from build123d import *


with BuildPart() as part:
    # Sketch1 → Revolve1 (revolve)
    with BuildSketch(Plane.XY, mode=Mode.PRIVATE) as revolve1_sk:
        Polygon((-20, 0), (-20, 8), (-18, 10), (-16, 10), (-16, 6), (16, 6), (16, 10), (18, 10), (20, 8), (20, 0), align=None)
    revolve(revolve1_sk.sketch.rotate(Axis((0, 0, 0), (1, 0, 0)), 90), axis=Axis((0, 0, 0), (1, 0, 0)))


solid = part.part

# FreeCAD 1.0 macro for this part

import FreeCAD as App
import Part
import Sketcher

V = App.Vector

doc = App.newDocument("Part")
body = doc.addObject("PartDesign::Body", "Body")

# Sketch on XY plane
sketch1 = doc.addObject("Sketcher::SketchObject", "Sketch")
body.addObject(sketch1)
sketch1.AttachmentSupport = (doc.XY_Plane, [""])
sketch1.MapMode = "FlatFace"
sketch1.addGeometry(Part.LineSegment(V(-20, 8, 0), V(-20, 0, 0)), False)
sketch1.addGeometry(Part.LineSegment(V(-20, 0, 0), V(20, 0, 0)), False)
sketch1.addGeometry(Part.LineSegment(V(20, 0, 0), V(20, 8, 0)), False)
sketch1.addGeometry(Part.LineSegment(V(20, 8, 0), V(18, 10, 0)), False)
sketch1.addGeometry(Part.LineSegment(V(18, 10, 0), V(16, 10, 0)), False)
sketch1.addGeometry(Part.LineSegment(V(16, 10, 0), V(16, 6, 0)), False)
sketch1.addGeometry(Part.LineSegment(V(16, 6, 0), V(-16, 6, 0)), False)
sketch1.addGeometry(Part.LineSegment(V(-16, 6, 0), V(-16, 10, 0)), False)
sketch1.addGeometry(Part.LineSegment(V(-16, 10, 0), V(-18, 10, 0)), False)
sketch1.addGeometry(Part.LineSegment(V(-18, 10, 0), V(-20, 8, 0)), False)
sketch1.addConstraint(Sketcher.Constraint("Coincident", 0, 2, 1, 1))
sketch1.addConstraint(Sketcher.Constraint("Coincident", 1, 2, 2, 1))
sketch1.addConstraint(Sketcher.Constraint("Coincident", 2, 2, 3, 1))
sketch1.addConstraint(Sketcher.Constraint("Coincident", 3, 2, 4, 1))
sketch1.addConstraint(Sketcher.Constraint("Coincident", 4, 2, 5, 1))
sketch1.addConstraint(Sketcher.Constraint("Coincident", 5, 2, 6, 1))
sketch1.addConstraint(Sketcher.Constraint("Coincident", 6, 2, 7, 1))
sketch1.addConstraint(Sketcher.Constraint("Coincident", 7, 2, 8, 1))
sketch1.addConstraint(Sketcher.Constraint("Coincident", 8, 2, 9, 1))
sketch1.addConstraint(Sketcher.Constraint("Coincident", 9, 2, 0, 1))
sketch1.addConstraint(Sketcher.Constraint("Vertical", 0))
sketch1.addConstraint(Sketcher.Constraint("Horizontal", 1))
sketch1.addConstraint(Sketcher.Constraint("Vertical", 2))
sketch1.addConstraint(Sketcher.Constraint("Horizontal", 4))
sketch1.addConstraint(Sketcher.Constraint("Vertical", 5))
sketch1.addConstraint(Sketcher.Constraint("Horizontal", 6))
sketch1.addConstraint(Sketcher.Constraint("Vertical", 7))
sketch1.addConstraint(Sketcher.Constraint("Horizontal", 8))
sketch1.addConstraint(Sketcher.Constraint("Symmetric", 0, 2, 1, 2, -1, 1))
sketch1.addConstraint(Sketcher.Constraint("Symmetric", 4, 2, 7, 2, -2))
sketch1.addConstraint(Sketcher.Constraint("Perpendicular", 3, 9))
sketch1.addConstraint(Sketcher.Constraint("Horizontal", 2, 2, 9, 2))
sketch1.addConstraint(Sketcher.Constraint("Equal", 4, 8))
sketch1.addConstraint(Sketcher.Constraint("DistanceX", 1, 1, 1, 2, 40.0))
sketch1.addConstraint(Sketcher.Constraint("DistanceX", 4, 2, 4, 1, 2.0))
sketch1.addConstraint(Sketcher.Constraint("DistanceX", 6, 2, 6, 1, 32.0))
sketch1.addConstraint(Sketcher.Constraint("DistanceY", 0, 2, 0, 1, 8.0))
sketch1.addConstraint(Sketcher.Constraint("DistanceY", 5, 2, 5, 1, 4.0))
revolution = doc.addObject("PartDesign::Revolution", "Revolution")
body.addObject(revolution)
revolution.Profile = sketch1
revolution.ReferenceAxis = (sketch1, ["H_Axis"])
revolution.Angle = 360

doc.recompute()
